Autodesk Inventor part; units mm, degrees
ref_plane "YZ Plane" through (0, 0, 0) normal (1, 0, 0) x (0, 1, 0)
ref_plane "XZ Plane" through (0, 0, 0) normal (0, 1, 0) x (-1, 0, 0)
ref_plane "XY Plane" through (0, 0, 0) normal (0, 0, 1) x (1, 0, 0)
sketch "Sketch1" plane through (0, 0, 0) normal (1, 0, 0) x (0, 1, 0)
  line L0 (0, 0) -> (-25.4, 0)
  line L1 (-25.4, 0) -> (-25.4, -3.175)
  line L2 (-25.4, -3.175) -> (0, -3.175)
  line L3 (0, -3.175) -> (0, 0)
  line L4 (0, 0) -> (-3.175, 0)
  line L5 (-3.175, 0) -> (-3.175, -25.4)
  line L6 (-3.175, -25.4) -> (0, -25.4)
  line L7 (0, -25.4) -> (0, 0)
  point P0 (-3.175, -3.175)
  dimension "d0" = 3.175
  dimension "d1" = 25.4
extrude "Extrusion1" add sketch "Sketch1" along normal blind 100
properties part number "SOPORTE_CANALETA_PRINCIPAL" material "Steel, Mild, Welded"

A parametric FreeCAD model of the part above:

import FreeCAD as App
import Part
import Sketcher
Q = App.Units.Quantity

doc = App.newDocument("Part")
body = doc.addObject("PartDesign::Body", "Body")

sketch1 = body.newObject("Sketcher::SketchObject", "Sketch")
sketch1.AttachmentSupport = (doc.getObject("YZ_Plane"), [""])
sketch1.MapMode = "FlatFace"
sketch1.addGeometry([
    Part.LineSegment(App.Vector(0, 0, 0), App.Vector(-25.4, 0, 0)),
    Part.LineSegment(App.Vector(-25.4, 0, 0), App.Vector(-25.4, -3.2, 0)),
    Part.LineSegment(App.Vector(-25.4, -3.2, 0), App.Vector(-3.2, -3.2, 0)),
    Part.LineSegment(App.Vector(-3.2, -3.2, 0), App.Vector(-3.2, -25.4, 0)),
    Part.LineSegment(App.Vector(-3.2, -25.4, 0), App.Vector(0, -25.4, 0)),
    Part.LineSegment(App.Vector(0, -25.4, 0), App.Vector(0, 0, 0)),
], False)
sketch1.addConstraint([
    Sketcher.Constraint("Coincident", 0, 2, 1, 1),
    Sketcher.Constraint("Coincident", 1, 2, 2, 1),
    Sketcher.Constraint("Coincident", 2, 2, 3, 1),
    Sketcher.Constraint("Coincident", 3, 2, 4, 1),
    Sketcher.Constraint("Coincident", 4, 2, 5, 1),
    Sketcher.Constraint("Coincident", 5, 2, 0, 1),
    Sketcher.Constraint("Horizontal", 0),
    Sketcher.Constraint("Vertical", 1),
    Sketcher.Constraint("Horizontal", 2),
    Sketcher.Constraint("Vertical", 3),
    Sketcher.Constraint("Horizontal", 4),
    Sketcher.Constraint("Vertical", 5),
    Sketcher.Constraint("Coincident", 5, 2, -1, 1),
    Sketcher.Constraint("Equal", 4, 1),
    Sketcher.Constraint("Equal", 2, 3),
    Sketcher.Constraint("DistanceX", 0, 2, 0, 1, Q("1 in")),
    Sketcher.Constraint("DistanceX", 4, 1, 4, 2, Q("0.125 in")),
])
pad1 = body.newObject("PartDesign::Pad", "Pad")
pad1.Profile = sketch1
pad1.Length = Q("3.9370079 in")

doc.recompute()
